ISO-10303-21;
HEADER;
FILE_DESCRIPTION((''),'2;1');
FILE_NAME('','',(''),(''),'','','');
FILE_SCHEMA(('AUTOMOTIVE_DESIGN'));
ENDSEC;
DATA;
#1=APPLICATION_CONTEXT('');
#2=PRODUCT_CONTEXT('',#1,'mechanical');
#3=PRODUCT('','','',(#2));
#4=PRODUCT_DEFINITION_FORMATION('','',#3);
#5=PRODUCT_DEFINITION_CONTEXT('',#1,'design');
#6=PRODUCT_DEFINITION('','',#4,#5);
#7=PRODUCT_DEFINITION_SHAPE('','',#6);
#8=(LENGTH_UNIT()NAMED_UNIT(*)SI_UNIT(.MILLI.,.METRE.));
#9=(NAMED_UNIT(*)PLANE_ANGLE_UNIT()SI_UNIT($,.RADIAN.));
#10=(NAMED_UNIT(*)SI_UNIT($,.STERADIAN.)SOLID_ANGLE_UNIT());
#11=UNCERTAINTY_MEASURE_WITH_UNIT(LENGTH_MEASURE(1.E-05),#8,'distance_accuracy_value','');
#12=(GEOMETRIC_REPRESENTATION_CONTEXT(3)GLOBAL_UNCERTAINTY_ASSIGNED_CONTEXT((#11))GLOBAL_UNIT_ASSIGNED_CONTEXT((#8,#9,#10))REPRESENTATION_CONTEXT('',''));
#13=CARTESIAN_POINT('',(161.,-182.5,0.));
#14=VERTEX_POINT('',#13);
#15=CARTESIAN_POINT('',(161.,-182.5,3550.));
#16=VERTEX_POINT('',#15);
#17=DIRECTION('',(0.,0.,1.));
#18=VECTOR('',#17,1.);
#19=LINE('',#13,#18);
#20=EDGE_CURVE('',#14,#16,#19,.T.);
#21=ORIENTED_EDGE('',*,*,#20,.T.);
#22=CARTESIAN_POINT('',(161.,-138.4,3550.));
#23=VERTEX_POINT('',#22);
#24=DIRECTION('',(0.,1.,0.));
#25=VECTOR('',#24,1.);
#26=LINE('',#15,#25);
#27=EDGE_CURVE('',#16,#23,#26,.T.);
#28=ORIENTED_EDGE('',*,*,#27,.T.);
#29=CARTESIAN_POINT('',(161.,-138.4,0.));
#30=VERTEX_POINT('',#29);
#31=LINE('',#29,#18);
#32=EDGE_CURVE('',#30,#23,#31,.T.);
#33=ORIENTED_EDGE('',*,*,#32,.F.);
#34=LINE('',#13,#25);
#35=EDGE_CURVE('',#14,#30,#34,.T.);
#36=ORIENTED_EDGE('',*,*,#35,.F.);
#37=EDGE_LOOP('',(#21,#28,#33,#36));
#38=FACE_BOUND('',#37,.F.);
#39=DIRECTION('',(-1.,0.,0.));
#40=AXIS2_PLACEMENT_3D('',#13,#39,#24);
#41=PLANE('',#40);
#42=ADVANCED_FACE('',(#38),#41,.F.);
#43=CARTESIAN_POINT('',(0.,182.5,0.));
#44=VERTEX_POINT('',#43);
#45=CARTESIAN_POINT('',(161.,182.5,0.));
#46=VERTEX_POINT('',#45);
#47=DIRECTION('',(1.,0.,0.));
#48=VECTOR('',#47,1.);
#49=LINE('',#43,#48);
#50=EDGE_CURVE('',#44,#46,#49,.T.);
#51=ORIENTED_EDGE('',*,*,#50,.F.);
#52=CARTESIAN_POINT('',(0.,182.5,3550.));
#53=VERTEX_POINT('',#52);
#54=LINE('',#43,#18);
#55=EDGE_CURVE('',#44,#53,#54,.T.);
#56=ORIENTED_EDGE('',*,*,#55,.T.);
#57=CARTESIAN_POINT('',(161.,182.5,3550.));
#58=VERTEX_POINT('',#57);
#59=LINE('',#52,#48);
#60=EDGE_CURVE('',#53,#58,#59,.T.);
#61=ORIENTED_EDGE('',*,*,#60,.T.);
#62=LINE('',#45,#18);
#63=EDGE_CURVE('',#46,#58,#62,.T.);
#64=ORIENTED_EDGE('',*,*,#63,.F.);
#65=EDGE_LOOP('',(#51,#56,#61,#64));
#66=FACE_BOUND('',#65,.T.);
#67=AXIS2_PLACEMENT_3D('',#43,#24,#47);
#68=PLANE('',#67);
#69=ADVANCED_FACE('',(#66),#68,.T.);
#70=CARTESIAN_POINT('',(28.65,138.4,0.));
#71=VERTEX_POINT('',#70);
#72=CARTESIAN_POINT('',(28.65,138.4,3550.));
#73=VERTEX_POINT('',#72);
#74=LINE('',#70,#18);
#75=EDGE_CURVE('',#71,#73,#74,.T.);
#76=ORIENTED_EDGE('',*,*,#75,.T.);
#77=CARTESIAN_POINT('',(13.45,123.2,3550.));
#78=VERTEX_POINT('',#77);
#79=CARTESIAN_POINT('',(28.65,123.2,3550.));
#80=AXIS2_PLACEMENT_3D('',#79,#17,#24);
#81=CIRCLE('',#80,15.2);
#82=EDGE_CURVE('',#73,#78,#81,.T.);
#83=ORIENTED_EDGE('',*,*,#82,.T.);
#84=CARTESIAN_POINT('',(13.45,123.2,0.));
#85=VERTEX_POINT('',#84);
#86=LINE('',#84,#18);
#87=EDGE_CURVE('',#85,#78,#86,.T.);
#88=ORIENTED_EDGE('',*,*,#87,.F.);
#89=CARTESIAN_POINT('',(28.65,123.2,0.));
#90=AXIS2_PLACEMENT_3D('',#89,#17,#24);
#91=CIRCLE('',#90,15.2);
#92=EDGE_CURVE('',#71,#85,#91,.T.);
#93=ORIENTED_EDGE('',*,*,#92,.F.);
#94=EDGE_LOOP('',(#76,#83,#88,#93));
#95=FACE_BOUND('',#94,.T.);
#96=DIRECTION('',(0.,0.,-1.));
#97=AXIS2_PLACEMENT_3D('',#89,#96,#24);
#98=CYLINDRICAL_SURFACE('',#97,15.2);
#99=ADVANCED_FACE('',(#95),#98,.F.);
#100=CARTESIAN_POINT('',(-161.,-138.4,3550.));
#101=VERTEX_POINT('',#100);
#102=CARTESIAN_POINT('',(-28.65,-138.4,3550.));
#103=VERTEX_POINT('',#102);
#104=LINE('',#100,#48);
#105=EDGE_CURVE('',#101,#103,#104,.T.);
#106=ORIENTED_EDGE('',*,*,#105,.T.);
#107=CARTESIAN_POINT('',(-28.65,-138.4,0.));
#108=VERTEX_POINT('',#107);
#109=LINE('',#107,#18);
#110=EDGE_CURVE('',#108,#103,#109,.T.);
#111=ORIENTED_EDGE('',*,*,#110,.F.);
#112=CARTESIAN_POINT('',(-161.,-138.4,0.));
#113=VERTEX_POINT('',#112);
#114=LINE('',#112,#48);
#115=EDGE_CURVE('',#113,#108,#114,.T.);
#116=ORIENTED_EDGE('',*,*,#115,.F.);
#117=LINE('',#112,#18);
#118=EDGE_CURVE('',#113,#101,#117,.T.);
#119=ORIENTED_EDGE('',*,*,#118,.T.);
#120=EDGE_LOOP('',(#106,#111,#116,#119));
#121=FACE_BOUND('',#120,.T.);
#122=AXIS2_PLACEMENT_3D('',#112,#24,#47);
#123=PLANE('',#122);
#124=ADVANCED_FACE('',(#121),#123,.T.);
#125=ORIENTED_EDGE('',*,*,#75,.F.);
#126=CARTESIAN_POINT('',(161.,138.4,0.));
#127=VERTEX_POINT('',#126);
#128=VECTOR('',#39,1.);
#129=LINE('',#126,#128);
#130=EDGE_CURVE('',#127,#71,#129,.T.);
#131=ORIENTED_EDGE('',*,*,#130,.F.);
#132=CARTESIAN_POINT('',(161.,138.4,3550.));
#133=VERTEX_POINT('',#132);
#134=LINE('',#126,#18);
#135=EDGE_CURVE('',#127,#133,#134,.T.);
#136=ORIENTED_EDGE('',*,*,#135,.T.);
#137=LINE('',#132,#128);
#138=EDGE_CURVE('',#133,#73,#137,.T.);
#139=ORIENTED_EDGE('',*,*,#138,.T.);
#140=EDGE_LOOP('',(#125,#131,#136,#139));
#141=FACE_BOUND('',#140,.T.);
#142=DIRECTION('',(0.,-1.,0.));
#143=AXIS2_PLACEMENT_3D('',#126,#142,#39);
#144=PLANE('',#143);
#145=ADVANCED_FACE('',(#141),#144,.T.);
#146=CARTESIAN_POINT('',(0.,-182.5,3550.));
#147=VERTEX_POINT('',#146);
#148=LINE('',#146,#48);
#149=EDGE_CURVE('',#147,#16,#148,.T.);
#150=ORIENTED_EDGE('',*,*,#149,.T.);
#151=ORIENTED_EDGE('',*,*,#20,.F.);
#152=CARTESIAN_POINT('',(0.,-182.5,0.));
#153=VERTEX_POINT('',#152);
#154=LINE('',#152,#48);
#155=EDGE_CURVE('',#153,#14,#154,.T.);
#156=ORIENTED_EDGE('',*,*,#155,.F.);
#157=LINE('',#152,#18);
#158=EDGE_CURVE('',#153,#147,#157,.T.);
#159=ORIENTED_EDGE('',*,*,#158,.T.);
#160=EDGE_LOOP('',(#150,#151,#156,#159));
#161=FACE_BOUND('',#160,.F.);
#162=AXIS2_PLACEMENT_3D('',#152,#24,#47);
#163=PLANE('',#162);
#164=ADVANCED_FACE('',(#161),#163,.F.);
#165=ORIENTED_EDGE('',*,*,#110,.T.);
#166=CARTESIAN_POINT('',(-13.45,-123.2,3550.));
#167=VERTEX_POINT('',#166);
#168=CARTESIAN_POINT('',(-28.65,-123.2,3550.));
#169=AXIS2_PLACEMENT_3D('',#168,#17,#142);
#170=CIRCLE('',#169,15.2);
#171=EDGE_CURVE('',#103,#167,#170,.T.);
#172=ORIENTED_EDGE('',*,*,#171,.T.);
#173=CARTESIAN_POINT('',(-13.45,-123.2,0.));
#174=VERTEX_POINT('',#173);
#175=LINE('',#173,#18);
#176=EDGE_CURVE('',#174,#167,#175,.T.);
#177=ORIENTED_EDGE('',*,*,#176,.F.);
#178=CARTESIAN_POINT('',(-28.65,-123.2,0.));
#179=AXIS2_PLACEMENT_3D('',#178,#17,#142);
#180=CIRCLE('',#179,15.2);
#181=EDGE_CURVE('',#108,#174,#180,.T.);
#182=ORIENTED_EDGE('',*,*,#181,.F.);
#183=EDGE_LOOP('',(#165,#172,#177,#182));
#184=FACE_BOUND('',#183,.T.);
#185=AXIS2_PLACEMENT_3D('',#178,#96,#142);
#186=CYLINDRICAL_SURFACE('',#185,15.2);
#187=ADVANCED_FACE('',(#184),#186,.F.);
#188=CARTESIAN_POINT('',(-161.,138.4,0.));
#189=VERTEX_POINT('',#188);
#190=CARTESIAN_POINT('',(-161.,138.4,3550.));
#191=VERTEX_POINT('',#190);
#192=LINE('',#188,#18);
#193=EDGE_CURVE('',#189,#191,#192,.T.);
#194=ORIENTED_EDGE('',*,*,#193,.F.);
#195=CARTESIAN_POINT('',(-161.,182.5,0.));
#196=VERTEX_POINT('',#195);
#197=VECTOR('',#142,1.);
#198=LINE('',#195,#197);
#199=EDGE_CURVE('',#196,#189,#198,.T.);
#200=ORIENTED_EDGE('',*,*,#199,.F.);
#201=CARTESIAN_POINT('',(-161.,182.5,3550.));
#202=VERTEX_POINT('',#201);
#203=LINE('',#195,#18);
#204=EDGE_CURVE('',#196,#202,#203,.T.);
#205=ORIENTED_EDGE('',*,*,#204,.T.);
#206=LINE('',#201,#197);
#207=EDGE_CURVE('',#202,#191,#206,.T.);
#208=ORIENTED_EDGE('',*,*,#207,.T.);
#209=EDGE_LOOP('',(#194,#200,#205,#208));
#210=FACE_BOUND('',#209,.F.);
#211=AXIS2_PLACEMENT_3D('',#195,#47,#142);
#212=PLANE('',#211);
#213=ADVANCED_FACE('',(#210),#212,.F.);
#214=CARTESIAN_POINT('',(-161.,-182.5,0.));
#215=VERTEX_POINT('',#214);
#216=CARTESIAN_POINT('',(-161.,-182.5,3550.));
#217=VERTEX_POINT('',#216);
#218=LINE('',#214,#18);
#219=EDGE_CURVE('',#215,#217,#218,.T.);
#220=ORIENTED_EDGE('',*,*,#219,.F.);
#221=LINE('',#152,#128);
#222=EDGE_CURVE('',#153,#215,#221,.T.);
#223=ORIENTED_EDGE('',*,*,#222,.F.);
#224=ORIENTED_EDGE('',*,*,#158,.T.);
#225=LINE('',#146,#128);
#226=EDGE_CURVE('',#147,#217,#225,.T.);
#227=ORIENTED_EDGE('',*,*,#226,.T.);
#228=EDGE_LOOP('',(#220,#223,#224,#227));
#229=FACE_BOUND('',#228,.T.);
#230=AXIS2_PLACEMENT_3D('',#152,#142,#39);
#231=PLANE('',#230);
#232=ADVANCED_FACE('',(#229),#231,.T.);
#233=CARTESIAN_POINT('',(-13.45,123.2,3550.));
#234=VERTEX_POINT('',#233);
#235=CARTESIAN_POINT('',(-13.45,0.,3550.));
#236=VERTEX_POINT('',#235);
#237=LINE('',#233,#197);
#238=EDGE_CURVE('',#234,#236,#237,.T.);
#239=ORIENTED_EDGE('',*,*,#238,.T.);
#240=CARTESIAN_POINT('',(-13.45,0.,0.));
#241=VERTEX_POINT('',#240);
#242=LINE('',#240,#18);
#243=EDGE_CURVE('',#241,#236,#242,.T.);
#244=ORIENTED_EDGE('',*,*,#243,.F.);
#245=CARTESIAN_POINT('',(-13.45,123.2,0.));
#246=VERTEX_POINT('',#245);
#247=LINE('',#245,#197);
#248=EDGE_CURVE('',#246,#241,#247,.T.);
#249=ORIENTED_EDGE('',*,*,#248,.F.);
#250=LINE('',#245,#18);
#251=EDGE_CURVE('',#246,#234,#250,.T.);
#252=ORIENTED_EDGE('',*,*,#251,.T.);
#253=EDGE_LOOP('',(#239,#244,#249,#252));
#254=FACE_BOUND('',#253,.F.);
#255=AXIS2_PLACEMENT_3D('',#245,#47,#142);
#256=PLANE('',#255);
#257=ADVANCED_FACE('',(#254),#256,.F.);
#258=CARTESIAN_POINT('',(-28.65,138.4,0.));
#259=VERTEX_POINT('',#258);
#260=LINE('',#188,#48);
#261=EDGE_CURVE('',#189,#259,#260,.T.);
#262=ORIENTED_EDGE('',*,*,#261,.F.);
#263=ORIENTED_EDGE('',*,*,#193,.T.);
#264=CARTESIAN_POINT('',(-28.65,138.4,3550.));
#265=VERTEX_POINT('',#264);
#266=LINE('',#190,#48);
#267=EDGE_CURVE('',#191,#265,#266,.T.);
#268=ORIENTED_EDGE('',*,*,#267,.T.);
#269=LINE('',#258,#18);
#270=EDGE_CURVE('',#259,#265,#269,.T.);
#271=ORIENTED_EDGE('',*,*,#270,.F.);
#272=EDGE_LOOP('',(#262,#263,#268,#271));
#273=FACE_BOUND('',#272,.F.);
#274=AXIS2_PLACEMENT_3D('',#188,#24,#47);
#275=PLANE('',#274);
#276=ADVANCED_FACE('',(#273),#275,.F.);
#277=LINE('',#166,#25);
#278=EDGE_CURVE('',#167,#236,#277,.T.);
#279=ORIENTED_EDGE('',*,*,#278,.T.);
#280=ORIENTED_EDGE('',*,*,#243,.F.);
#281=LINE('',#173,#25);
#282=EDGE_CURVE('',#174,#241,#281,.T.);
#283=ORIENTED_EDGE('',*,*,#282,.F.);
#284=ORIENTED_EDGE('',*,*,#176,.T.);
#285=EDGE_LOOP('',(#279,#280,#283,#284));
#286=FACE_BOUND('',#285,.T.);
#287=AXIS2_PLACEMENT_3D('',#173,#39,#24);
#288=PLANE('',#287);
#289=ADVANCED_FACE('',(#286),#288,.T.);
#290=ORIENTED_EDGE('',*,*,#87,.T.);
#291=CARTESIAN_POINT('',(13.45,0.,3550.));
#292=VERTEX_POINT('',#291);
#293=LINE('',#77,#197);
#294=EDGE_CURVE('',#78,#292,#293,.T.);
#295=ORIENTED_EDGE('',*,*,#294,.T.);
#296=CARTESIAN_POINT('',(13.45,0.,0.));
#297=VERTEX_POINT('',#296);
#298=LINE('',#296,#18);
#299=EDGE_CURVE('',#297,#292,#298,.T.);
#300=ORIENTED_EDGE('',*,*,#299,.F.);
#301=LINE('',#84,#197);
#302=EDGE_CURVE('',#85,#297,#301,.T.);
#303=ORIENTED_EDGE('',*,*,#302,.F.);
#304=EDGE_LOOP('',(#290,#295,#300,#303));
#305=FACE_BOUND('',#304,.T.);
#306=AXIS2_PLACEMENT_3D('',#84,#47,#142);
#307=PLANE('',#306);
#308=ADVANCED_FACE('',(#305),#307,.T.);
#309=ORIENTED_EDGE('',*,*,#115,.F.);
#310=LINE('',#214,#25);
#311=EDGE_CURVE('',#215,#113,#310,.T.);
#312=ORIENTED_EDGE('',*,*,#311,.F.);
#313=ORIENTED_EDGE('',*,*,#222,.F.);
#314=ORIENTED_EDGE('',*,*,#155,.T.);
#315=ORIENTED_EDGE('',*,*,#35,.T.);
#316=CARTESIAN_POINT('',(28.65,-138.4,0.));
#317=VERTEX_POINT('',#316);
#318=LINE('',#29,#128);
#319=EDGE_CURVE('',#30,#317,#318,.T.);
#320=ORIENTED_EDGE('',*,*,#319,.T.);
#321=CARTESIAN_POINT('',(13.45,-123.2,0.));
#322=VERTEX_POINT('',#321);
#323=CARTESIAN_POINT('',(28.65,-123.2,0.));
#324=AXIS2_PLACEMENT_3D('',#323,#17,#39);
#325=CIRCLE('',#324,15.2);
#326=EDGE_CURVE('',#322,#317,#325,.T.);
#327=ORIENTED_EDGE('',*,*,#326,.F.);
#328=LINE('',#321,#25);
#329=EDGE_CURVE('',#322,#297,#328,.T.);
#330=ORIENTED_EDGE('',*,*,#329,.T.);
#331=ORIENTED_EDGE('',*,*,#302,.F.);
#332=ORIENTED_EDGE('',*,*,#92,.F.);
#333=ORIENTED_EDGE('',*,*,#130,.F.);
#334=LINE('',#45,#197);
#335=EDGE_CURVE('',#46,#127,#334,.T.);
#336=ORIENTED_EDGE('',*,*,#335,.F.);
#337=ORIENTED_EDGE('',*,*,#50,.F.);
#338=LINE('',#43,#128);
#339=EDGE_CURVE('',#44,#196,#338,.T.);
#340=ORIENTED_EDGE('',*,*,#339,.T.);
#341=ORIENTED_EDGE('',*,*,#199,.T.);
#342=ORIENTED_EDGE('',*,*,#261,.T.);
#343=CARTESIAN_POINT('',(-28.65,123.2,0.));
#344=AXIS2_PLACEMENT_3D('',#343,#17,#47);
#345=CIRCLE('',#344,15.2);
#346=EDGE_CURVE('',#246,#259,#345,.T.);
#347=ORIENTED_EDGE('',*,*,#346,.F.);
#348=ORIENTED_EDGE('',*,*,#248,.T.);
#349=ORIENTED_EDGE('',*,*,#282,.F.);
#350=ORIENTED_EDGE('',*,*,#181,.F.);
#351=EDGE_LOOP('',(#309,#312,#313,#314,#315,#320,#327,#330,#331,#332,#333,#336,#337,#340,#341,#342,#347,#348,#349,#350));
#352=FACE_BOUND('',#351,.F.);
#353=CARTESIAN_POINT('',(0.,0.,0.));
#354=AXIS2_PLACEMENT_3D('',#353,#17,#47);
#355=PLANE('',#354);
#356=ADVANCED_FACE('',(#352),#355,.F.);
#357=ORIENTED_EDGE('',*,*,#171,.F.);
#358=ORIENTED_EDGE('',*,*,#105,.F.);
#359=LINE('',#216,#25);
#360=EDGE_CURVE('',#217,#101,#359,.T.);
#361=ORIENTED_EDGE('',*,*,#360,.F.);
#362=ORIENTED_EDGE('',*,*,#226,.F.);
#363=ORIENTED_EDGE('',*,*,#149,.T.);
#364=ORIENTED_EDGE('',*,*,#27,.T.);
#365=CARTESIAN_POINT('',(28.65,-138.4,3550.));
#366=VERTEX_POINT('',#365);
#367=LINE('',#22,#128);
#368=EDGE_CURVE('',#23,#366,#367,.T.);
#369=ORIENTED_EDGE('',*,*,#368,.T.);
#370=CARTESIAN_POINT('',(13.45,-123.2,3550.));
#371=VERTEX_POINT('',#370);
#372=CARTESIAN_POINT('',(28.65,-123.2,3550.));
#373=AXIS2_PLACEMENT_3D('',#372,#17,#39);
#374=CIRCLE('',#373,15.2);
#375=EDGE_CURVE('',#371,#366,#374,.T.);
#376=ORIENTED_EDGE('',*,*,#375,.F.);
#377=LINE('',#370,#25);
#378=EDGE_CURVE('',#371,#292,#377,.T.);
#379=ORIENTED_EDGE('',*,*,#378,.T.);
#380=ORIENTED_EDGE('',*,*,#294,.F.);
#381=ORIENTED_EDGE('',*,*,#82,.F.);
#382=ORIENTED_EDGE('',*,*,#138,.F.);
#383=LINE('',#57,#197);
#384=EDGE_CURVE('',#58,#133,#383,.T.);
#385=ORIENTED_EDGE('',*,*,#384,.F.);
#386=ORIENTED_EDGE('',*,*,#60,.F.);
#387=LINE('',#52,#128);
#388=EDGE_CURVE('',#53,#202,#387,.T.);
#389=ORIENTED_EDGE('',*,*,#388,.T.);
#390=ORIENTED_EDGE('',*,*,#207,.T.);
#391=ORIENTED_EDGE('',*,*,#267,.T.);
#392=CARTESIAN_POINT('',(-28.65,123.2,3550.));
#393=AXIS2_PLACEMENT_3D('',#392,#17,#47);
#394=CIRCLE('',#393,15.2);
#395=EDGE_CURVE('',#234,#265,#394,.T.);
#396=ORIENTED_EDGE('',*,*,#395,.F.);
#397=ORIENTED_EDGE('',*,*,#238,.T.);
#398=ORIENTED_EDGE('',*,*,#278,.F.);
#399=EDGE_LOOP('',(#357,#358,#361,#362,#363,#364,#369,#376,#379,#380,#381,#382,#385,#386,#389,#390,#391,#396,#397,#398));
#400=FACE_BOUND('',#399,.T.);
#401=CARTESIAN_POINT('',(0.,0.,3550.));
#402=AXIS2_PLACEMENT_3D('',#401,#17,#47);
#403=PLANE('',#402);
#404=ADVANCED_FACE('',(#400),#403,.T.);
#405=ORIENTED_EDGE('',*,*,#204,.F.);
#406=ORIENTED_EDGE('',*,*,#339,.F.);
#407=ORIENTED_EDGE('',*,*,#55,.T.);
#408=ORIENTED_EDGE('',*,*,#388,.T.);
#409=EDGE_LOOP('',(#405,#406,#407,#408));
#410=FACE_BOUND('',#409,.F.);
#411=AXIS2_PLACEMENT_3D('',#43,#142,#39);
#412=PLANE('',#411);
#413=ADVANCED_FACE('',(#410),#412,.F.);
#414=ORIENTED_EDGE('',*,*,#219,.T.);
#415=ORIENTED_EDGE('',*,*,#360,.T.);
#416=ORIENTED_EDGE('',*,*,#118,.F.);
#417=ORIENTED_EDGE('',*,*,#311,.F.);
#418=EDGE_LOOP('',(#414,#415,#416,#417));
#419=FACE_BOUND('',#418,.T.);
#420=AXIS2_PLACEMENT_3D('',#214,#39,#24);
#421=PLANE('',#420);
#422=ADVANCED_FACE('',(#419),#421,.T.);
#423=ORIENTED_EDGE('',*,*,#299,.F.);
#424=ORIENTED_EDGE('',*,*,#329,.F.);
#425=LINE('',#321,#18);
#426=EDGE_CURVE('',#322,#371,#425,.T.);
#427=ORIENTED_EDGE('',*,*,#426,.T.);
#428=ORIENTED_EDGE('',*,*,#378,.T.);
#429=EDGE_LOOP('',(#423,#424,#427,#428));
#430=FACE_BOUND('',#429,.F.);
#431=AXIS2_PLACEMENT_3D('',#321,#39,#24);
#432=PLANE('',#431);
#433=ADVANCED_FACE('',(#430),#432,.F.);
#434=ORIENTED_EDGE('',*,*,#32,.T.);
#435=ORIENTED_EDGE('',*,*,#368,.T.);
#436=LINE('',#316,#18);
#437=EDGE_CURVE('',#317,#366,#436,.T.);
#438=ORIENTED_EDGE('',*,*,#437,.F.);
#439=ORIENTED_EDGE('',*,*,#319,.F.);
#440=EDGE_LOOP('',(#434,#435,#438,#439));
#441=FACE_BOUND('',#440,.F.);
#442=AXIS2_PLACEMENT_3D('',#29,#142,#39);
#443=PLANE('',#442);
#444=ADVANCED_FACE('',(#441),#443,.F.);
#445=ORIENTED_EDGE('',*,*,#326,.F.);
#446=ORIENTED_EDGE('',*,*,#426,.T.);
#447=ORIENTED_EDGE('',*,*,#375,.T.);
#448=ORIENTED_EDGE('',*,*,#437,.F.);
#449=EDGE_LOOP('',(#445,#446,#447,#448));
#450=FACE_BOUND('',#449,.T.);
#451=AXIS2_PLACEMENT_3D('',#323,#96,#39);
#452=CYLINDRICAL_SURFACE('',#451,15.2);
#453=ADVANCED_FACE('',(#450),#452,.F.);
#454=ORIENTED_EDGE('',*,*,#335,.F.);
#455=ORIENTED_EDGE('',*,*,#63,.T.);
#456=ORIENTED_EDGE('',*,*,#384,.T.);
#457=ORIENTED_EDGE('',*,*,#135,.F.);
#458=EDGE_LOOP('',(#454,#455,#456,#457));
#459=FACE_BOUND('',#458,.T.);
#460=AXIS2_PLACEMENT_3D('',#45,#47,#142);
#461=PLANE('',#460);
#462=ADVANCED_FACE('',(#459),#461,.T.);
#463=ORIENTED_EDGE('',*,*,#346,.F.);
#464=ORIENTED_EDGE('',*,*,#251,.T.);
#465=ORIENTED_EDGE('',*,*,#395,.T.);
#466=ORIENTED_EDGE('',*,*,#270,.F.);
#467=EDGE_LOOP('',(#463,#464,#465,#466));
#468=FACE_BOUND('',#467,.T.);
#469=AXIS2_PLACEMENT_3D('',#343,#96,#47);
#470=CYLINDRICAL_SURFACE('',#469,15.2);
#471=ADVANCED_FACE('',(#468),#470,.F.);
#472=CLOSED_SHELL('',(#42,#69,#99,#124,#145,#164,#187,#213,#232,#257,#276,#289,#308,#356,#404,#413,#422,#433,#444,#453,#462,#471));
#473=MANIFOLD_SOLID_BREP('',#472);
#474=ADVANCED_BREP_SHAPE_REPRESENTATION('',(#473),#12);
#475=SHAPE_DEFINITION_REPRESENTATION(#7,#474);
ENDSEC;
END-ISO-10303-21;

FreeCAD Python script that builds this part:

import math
import FreeCAD as App
import Part
import Sketcher

doc = App.newDocument("Part")
body = doc.addObject("PartDesign::Body", "Body")

# Sketch on XY plane
sketch1 = doc.addObject("Sketcher::SketchObject", "Sketch")
body.addObject(sketch1)
sketch1.AttachmentSupport = (doc.XY_Plane, [""])
sketch1.MapMode = "FlatFace"
sketch1.addGeometry([
    Part.LineSegment(App.Vector(-161, -138.4, 0), App.Vector(-161, -182.5, 0)),  # 0
    Part.LineSegment(App.Vector(-161, -182.5, 0), App.Vector(161, -182.5, 0)),  # 1
    Part.LineSegment(App.Vector(161, -182.5, 0), App.Vector(161, -138.4, 0)),  # 2
    Part.LineSegment(App.Vector(161, -138.4, 0), App.Vector(28.65, -138.4, 0)),  # 3
    Part.ArcOfCircle(Part.Circle(App.Vector(28.65, -123.2, 0), App.Vector(0, 0, 1), 15.2), math.radians(180), math.radians(270)),  # 4
    Part.LineSegment(App.Vector(13.45, -123.2, 0), App.Vector(13.45, 123.2, 0)),  # 5
    Part.ArcOfCircle(Part.Circle(App.Vector(28.65, 123.2, 0), App.Vector(0, 0, 1), 15.2), math.radians(90), math.radians(180)),  # 6
    Part.LineSegment(App.Vector(28.65, 138.4, 0), App.Vector(161, 138.4, 0)),  # 7
    Part.LineSegment(App.Vector(161, 138.4, 0), App.Vector(161, 182.5, 0)),  # 8
    Part.LineSegment(App.Vector(161, 182.5, 0), App.Vector(-161, 182.5, 0)),  # 9
    Part.LineSegment(App.Vector(-161, 182.5, 0), App.Vector(-161, 138.4, 0)),  # 10
    Part.LineSegment(App.Vector(-161, 138.4, 0), App.Vector(-28.65, 138.4, 0)),  # 11
    Part.ArcOfCircle(Part.Circle(App.Vector(-28.65, 123.2, 0), App.Vector(0, 0, 1), 15.2), math.radians(0), math.radians(90)),  # 12
    Part.LineSegment(App.Vector(-13.45, 123.2, 0), App.Vector(-13.45, -123.2, 0)),  # 13
    Part.ArcOfCircle(Part.Circle(App.Vector(-28.65, -123.2, 0), App.Vector(0, 0, 1), 15.2), math.radians(-90), math.radians(0)),  # 14
    Part.LineSegment(App.Vector(-28.65, -138.4, 0), App.Vector(-161, -138.4, 0)),  # 15
], False)
sketch1.addConstraint([
    Sketcher.Constraint("Coincident", 0, 2, 1, 1),
    Sketcher.Constraint("Coincident", 1, 2, 2, 1),
    Sketcher.Constraint("Coincident", 2, 2, 3, 1),
    Sketcher.Constraint("Tangent", 3, 2, 4, 2),
    Sketcher.Constraint("Tangent", 4, 1, 5, 1),
    Sketcher.Constraint("Tangent", 5, 2, 6, 2),
    Sketcher.Constraint("Tangent", 6, 1, 7, 1),
    Sketcher.Constraint("Coincident", 7, 2, 8, 1),
    Sketcher.Constraint("Coincident", 8, 2, 9, 1),
    Sketcher.Constraint("Coincident", 9, 2, 10, 1),
    Sketcher.Constraint("Coincident", 10, 2, 11, 1),
    Sketcher.Constraint("Tangent", 11, 2, 12, 2),
    Sketcher.Constraint("Tangent", 12, 1, 13, 1),
    Sketcher.Constraint("Tangent", 13, 2, 14, 2),
    Sketcher.Constraint("Tangent", 14, 1, 15, 1),
    Sketcher.Constraint("Coincident", 15, 2, 0, 1),
    Sketcher.Constraint("Vertical", 0),
    Sketcher.Constraint("Horizontal", 1),
    Sketcher.Constraint("Vertical", 2),
    Sketcher.Constraint("Horizontal", 3),
    Sketcher.Constraint("Vertical", 5),
    Sketcher.Constraint("Horizontal", 7),
    Sketcher.Constraint("Vertical", 8),
    Sketcher.Constraint("Horizontal", 9),
    Sketcher.Constraint("Vertical", 10),
    Sketcher.Constraint("Horizontal", 11),
    Sketcher.Constraint("Vertical", 13),
    Sketcher.Constraint("Horizontal", 15),
    Sketcher.Constraint("Equal", 4, 6),
    Sketcher.Constraint("Equal", 6, 12),
    Sketcher.Constraint("Equal", 12, 14),
    Sketcher.Constraint("Symmetric", 4, 3, 12, 3, -1, 1),
    Sketcher.Constraint("Symmetric", 0, 2, 8, 2, -1, 1),
    Sketcher.Constraint("Symmetric", 7, 2, 10, 2, -2),
    Sketcher.Constraint("Symmetric", 2, 2, 15, 2, -2),
    Sketcher.Constraint("Radius", 4, 15.2),
    Sketcher.Constraint("DistanceY", 0, 2, 0, 1, 44.1),
    Sketcher.Constraint("DistanceX", 0, 2, -1, 1, 161.0),
    Sketcher.Constraint("DistanceY", 0, 2, -1, 1, 182.5),
    Sketcher.Constraint("DistanceX", -1, 1, 4, 1, 13.45),
])
pad1 = doc.addObject("PartDesign::Pad", "Pad")
body.addObject(pad1)
pad1.Profile = sketch1
pad1.Length = 3550

doc.recompute()
